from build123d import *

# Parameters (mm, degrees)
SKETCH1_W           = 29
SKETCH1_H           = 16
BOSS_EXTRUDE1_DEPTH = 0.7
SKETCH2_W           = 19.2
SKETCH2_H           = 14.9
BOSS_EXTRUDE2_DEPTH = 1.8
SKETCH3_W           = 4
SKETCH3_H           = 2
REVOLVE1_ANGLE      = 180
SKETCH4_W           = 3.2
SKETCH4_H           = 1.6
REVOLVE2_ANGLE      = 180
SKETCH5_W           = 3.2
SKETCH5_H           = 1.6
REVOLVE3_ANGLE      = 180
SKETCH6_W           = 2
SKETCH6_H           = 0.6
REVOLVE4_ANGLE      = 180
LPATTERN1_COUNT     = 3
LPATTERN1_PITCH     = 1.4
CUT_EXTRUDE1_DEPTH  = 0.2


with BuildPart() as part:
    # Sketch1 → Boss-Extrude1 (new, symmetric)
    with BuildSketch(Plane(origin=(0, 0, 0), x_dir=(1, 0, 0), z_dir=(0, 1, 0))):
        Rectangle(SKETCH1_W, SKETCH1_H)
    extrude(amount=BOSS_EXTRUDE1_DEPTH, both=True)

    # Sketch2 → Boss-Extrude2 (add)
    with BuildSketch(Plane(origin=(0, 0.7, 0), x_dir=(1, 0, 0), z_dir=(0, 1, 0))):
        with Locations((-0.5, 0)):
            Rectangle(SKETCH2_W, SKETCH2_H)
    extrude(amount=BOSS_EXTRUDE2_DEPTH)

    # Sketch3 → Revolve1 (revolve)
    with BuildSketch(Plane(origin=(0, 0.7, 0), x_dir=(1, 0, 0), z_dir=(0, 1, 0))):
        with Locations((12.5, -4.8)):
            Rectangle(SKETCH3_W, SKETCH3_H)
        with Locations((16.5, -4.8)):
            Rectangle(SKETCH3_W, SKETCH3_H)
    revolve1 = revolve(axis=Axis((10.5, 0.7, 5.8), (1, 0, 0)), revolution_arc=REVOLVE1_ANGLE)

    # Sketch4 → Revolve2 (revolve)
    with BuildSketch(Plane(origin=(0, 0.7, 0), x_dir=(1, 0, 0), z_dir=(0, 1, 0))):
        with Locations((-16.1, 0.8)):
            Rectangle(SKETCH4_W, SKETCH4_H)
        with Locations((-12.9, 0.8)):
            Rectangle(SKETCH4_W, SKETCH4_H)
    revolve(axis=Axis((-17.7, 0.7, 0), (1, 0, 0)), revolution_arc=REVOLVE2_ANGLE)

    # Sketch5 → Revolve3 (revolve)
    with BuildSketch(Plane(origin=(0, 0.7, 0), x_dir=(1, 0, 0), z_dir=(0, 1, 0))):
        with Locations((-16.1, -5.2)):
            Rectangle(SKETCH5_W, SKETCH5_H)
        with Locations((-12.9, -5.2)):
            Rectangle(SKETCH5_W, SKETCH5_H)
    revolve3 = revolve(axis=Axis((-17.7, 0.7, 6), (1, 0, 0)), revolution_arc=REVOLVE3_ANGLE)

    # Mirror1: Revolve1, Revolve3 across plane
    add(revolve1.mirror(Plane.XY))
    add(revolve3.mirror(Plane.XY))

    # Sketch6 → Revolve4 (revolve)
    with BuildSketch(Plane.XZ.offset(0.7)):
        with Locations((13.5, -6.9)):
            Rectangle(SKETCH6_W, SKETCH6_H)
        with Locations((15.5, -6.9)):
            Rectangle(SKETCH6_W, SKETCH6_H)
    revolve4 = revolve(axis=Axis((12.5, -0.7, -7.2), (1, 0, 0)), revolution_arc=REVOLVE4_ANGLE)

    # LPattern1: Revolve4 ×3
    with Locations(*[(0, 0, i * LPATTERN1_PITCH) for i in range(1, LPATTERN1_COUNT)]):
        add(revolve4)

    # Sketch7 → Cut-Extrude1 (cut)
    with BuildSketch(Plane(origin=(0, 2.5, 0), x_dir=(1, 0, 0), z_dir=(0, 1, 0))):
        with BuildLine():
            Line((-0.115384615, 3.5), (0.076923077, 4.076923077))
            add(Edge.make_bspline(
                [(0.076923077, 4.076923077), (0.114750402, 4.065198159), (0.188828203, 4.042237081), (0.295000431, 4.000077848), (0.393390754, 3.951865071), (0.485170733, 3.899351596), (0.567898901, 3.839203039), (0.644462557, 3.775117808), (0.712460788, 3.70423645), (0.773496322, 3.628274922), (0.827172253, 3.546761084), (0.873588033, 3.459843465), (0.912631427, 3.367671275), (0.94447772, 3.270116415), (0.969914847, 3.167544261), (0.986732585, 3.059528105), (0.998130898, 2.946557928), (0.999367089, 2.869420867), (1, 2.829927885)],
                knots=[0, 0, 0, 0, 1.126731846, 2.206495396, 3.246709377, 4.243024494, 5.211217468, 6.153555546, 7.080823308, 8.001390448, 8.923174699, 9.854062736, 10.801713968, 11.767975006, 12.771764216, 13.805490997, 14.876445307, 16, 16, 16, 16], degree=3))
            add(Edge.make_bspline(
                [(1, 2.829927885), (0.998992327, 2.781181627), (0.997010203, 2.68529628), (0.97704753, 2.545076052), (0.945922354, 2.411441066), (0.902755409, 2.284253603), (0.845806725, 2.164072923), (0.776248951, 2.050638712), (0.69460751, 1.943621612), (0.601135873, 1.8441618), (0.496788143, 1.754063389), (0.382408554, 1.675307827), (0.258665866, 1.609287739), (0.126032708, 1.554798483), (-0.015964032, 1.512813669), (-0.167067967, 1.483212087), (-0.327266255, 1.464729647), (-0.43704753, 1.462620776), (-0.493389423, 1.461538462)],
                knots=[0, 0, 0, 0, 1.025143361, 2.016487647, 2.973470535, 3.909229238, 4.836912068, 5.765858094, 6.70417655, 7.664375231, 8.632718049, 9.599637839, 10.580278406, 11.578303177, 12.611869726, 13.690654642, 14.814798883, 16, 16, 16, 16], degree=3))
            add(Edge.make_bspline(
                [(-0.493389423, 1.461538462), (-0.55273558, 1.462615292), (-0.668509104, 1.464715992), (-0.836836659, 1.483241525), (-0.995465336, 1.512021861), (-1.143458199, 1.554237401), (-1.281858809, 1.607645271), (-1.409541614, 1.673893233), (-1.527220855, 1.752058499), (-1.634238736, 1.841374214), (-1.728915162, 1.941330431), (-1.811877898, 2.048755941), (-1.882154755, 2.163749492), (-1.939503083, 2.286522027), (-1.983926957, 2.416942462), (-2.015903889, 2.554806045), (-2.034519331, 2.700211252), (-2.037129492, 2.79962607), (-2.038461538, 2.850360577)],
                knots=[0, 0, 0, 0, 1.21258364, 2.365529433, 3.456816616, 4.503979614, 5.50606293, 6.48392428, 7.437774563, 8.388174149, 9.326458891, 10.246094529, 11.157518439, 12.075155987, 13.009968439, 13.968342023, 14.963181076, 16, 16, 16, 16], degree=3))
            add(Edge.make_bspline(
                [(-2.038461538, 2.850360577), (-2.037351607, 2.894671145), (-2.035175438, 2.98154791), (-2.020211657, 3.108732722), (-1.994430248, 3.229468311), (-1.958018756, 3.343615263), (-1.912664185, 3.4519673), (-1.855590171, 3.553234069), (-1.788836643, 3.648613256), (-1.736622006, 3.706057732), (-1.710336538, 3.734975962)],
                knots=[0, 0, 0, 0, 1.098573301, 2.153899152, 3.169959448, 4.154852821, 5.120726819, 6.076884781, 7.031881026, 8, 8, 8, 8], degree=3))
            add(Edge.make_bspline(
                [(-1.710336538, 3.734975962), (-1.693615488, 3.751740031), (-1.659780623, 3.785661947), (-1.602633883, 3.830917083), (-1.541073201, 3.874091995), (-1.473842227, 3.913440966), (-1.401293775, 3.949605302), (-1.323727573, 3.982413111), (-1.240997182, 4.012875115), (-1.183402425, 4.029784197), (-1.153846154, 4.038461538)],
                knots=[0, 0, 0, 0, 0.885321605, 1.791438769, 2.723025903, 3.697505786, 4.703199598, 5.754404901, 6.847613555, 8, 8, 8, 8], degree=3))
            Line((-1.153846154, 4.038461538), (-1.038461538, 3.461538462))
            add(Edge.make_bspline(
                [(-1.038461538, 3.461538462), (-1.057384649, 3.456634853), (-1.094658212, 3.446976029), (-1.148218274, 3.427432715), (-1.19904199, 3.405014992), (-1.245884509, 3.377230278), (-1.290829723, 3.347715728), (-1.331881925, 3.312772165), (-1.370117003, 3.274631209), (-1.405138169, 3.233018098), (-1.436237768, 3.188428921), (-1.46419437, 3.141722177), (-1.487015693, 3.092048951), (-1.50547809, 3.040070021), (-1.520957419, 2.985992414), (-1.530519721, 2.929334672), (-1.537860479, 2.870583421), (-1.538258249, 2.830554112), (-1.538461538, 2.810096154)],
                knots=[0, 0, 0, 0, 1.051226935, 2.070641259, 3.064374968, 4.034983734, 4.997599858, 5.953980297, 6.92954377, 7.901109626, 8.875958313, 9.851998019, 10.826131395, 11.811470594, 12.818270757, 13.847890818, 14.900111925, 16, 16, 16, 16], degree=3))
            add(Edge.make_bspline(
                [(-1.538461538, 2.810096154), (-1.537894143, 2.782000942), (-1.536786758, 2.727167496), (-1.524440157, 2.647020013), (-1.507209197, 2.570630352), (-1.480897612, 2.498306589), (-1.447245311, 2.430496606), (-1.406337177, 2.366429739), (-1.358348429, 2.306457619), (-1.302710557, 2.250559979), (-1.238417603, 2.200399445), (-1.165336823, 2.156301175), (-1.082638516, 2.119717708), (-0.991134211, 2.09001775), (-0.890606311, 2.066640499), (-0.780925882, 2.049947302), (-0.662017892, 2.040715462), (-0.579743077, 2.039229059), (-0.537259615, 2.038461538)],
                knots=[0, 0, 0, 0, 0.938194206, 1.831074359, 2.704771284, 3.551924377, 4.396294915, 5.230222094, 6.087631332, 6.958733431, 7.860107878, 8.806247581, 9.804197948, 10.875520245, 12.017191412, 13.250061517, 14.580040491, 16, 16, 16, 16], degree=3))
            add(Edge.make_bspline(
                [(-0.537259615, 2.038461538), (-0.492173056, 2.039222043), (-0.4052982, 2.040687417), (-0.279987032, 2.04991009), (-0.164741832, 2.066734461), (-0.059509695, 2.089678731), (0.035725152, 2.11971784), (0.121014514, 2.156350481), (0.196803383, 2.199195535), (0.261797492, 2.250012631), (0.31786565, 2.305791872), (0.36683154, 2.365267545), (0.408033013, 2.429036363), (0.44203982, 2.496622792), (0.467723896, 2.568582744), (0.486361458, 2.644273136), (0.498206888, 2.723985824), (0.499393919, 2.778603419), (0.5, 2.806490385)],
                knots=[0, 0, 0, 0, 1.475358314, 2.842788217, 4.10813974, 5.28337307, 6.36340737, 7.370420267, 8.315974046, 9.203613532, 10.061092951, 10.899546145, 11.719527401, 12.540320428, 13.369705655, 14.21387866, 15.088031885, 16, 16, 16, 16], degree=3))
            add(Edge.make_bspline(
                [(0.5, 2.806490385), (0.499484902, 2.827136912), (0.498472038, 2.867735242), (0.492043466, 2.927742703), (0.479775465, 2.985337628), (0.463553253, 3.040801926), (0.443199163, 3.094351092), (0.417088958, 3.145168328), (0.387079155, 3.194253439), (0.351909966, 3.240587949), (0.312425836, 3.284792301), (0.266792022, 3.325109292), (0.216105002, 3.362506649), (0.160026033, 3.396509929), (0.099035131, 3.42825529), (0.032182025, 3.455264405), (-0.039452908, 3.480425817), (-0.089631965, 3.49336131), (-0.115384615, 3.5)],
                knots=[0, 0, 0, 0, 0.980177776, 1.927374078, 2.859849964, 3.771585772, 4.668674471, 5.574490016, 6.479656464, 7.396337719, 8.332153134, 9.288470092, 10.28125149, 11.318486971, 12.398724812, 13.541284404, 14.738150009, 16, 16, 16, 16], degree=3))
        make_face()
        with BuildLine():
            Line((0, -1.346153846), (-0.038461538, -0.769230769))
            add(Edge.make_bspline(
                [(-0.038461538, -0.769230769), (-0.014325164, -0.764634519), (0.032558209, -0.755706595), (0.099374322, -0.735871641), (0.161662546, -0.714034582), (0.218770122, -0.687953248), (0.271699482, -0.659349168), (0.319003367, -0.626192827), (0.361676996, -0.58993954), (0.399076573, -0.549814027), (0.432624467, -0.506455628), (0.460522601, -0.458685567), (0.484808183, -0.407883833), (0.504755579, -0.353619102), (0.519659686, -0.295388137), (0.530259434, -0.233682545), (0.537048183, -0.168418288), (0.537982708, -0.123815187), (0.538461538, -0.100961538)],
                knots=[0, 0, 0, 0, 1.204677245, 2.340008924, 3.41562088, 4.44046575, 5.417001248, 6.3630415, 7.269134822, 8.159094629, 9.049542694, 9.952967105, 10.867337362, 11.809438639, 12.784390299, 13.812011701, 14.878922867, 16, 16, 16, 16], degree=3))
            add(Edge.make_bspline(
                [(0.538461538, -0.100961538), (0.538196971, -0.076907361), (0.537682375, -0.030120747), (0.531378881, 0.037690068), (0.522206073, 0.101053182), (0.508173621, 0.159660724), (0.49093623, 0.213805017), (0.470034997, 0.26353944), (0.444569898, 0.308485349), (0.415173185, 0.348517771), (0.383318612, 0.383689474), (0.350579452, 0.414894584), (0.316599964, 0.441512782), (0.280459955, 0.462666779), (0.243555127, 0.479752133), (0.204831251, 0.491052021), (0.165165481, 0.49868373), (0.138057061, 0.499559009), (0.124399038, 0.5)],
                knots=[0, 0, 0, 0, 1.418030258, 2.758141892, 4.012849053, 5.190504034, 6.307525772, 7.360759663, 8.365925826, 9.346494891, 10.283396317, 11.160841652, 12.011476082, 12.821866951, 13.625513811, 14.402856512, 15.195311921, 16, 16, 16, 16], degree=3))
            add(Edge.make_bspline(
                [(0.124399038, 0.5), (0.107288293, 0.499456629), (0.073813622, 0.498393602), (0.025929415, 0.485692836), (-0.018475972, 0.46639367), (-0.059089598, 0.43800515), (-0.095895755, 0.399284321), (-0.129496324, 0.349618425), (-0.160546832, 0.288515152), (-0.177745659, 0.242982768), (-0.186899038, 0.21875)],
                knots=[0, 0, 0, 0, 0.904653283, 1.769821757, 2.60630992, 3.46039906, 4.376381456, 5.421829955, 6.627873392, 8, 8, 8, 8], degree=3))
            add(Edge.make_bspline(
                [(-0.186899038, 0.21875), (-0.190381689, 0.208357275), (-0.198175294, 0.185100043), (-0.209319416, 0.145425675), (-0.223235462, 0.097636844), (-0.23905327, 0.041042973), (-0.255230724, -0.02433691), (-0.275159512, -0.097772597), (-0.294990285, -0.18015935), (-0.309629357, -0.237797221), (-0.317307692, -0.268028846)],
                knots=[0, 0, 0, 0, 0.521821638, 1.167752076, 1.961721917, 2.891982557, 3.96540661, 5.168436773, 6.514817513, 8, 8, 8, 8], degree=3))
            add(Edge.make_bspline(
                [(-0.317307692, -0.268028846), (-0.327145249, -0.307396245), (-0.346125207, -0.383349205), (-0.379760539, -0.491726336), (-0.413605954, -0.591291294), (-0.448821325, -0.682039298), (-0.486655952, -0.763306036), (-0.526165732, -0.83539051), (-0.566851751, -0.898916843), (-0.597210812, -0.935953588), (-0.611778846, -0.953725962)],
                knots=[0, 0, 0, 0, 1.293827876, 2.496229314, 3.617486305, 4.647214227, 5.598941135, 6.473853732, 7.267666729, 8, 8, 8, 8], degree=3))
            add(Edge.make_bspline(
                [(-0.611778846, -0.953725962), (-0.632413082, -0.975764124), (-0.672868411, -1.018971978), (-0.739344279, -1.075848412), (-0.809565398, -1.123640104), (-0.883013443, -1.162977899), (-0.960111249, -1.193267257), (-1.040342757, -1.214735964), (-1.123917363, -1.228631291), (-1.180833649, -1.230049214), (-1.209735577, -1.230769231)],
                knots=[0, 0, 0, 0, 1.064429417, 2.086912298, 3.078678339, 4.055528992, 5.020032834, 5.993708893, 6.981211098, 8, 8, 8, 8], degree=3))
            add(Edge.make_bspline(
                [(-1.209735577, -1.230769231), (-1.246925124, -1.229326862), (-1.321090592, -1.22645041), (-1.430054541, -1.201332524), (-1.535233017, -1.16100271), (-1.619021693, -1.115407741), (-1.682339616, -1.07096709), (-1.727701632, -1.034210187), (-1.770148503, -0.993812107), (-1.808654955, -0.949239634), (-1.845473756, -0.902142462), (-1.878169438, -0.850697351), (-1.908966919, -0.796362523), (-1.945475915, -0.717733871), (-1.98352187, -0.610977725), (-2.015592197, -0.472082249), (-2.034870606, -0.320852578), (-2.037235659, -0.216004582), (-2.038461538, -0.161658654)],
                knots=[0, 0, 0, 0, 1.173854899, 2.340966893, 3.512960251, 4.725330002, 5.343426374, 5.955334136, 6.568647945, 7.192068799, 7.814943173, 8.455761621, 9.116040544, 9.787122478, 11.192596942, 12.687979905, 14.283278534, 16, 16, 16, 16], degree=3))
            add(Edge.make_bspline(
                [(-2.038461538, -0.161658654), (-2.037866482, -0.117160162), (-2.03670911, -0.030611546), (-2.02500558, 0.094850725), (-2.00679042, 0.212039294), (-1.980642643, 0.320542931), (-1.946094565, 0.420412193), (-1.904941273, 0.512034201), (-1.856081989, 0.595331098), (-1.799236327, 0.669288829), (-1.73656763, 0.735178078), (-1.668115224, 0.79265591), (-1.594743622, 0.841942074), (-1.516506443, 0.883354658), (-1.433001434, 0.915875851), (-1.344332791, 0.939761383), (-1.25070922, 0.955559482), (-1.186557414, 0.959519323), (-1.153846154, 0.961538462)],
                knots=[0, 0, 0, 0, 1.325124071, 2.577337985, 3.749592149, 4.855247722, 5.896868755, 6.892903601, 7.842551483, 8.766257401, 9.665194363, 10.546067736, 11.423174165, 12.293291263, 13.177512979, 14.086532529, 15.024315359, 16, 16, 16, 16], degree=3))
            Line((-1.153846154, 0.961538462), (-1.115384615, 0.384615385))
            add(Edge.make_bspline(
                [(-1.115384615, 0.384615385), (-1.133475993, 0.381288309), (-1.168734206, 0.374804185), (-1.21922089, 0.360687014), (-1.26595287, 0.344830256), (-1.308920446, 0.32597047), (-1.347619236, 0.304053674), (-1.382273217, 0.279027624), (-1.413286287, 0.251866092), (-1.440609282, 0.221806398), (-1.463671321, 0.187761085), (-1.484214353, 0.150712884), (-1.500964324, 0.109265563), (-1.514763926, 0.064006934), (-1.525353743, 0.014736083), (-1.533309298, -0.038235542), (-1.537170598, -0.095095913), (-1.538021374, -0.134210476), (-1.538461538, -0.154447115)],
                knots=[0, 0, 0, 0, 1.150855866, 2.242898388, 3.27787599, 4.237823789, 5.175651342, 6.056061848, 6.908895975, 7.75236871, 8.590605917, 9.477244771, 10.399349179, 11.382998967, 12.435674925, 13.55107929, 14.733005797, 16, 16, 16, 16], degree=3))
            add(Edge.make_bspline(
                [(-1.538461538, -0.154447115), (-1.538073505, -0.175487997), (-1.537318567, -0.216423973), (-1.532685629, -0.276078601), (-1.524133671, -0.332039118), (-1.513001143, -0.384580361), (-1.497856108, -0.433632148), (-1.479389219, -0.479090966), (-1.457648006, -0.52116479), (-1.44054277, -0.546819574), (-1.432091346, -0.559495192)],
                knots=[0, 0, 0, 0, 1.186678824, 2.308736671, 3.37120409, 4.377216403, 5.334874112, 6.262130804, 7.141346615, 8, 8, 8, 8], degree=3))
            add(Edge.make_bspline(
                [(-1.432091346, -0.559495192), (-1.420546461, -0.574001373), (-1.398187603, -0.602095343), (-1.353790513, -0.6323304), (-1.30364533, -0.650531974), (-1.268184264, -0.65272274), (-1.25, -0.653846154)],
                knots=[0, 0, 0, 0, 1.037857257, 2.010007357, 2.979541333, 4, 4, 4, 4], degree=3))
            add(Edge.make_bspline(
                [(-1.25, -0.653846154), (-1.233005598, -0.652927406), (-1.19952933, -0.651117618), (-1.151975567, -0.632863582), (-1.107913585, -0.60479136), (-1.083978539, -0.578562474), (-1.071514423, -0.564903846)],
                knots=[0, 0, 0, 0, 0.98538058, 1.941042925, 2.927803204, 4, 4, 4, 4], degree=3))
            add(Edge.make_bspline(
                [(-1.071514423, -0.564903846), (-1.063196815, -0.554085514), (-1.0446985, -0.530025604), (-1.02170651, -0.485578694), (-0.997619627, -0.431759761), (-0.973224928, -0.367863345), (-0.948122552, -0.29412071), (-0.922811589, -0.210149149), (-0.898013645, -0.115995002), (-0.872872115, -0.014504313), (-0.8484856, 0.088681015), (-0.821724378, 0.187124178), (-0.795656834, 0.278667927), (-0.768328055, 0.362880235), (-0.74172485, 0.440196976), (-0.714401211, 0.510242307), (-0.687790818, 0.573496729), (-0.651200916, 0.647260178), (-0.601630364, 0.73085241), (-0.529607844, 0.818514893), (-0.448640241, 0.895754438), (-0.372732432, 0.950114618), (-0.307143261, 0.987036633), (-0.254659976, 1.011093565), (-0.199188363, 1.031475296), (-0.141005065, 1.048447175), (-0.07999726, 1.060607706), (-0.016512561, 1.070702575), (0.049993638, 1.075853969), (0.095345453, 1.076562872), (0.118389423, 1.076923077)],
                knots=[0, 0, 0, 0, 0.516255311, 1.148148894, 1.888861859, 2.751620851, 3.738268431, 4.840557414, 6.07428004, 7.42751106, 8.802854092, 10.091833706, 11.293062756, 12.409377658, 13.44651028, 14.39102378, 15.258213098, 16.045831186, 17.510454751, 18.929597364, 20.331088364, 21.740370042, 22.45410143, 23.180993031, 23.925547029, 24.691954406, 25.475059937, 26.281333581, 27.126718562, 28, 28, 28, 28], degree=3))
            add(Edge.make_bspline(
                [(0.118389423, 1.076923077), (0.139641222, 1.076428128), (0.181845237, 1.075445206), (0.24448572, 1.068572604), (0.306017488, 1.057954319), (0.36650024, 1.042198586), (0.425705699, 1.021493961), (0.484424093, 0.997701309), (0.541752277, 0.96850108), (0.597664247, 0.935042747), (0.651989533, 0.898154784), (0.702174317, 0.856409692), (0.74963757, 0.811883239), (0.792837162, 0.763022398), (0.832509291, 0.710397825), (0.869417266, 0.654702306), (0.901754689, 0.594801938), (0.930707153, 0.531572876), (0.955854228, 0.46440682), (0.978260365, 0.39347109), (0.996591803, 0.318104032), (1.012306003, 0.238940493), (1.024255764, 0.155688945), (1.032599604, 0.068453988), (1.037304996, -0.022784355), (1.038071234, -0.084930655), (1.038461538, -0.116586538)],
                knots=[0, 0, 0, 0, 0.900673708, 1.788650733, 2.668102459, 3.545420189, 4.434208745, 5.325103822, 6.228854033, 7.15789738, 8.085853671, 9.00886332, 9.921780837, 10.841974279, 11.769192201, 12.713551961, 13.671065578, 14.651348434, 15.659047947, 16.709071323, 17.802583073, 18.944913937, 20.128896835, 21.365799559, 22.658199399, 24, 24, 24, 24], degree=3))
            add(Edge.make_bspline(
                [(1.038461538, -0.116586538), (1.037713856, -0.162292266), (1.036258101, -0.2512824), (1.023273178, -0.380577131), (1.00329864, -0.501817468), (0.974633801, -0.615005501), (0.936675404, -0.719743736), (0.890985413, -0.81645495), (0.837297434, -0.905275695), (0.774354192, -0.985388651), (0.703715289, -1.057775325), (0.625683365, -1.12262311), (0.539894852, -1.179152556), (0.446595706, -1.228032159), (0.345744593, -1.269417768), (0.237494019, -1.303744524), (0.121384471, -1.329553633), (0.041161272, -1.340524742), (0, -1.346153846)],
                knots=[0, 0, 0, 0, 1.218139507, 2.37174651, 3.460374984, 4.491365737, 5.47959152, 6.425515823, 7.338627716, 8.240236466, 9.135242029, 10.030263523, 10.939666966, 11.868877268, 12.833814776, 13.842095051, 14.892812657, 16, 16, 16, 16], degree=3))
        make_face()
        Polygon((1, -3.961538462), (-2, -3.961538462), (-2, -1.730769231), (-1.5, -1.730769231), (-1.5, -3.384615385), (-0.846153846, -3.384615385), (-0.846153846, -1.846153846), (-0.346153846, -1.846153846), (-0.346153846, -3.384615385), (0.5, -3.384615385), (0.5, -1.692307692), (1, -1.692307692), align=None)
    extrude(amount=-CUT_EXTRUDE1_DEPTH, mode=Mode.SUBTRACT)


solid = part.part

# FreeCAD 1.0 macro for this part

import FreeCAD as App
import Part
import Sketcher

V = App.Vector
Q = App.Units.Quantity


def add_polygon(sketch, points):
    """Adds a closed chain of lines whose ends are joined by coincident constraints."""
    first, n = sketch.GeometryCount, len(points)
    for a, b in zip(points, points[1:] + points[:1]):
        sketch.addGeometry(Part.LineSegment(App.Vector(*a, 0), App.Vector(*b, 0)), False)
    for i in range(n):
        sketch.addConstraint(Sketcher.Constraint("Coincident", first + i, 2, first + (i + 1) % n, 1))

doc = App.newDocument("Part")
body = doc.addObject("PartDesign::Body", "Body")

sketch1 = body.newObject("Sketcher::SketchObject", "Sketch")
sketch1.AttachmentSupport = (doc.getObject("XZ_Plane"), [""])
sketch1.MapMode = "FlatFace"
add_polygon(sketch1, [(-14.5, -8), (-14.5, 8), (14.5, 8), (14.5, -8)])
sketch1.addConstraint(Sketcher.Constraint("Vertical", 0))
sketch1.addConstraint(Sketcher.Constraint("Horizontal", 1))
sketch1.addConstraint(Sketcher.Constraint("Vertical", 2))
sketch1.addConstraint(Sketcher.Constraint("Horizontal", 3))
sketch1.addConstraint(Sketcher.Constraint("Symmetric", 0, 2, 2, 2, -1, 1))
sketch1.addConstraint(Sketcher.Constraint("DistanceX", 1, 1, 1, 2, Q("29 mm")))
sketch1.addConstraint(Sketcher.Constraint("DistanceY", 0, 1, 0, 2, Q("16 mm")))
pad1 = body.newObject("PartDesign::Pad", "Pad")
pad1.Profile = sketch1
pad1.Length = 1.4
pad1.Midplane = True

sketch2 = body.newObject("Sketcher::SketchObject", "Sketch001")
sketch2.AttachmentSupport = (doc.getObject("XZ_Plane"), [""])
sketch2.MapMode = "FlatFace"
sketch2.AttachmentOffset = App.Placement(V(0, 0, -0.7), App.Rotation())
add_polygon(sketch2, [(-10.1, -7.45), (-10.1, 7.45), (9.1, 7.45), (9.1, -7.45)])
sketch2.addConstraint(Sketcher.Constraint("Vertical", 0))
sketch2.addConstraint(Sketcher.Constraint("Horizontal", 1))
sketch2.addConstraint(Sketcher.Constraint("Vertical", 2))
sketch2.addConstraint(Sketcher.Constraint("Horizontal", 3))
sketch2.addConstraint(Sketcher.Constraint("DistanceX", 1, 1, 1, 2, Q("19.2 mm")))
sketch2.addConstraint(Sketcher.Constraint("DistanceY", 0, 1, 0, 2, Q("14.9 mm")))
sketch2.addConstraint(Sketcher.Constraint("DistanceX", 0, 2, -1, 1, Q("10.1 mm")))
sketch2.addConstraint(Sketcher.Constraint("DistanceY", -1, 1, 0, 2, Q("7.45 mm")))
pad2 = body.newObject("PartDesign::Pad", "Pad001")
pad2.Profile = sketch2
pad2.Length = 1.8
pad2.Reversed = True

sketch3 = body.newObject("Sketcher::SketchObject", "Sketch002")
sketch3.AttachmentSupport = (doc.getObject("XZ_Plane"), [""])
sketch3.MapMode = "FlatFace"
sketch3.AttachmentOffset = App.Placement(V(0, 0, -0.7), App.Rotation())
add_polygon(sketch3, [(10.5, 3.8), (10.5, 5.8), (18.5, 5.8), (18.5, 3.8)])
sketch3.addGeometry(Part.LineSegment(V(10.5, 5.8, 0), V(18.5, 5.8, 0)), True)
sketch3.addConstraint(Sketcher.Constraint("Vertical", 0))
sketch3.addConstraint(Sketcher.Constraint("Horizontal", 1))
sketch3.addConstraint(Sketcher.Constraint("Vertical", 2))
sketch3.addConstraint(Sketcher.Constraint("Horizontal", 3))
sketch3.addConstraint(Sketcher.Constraint("Horizontal", 4))
sketch3.addConstraint(Sketcher.Constraint("Coincident", 4, 1, 0, 2))
sketch3.addConstraint(Sketcher.Constraint("Vertical", 2, 2, 4, 2))
sketch3.addConstraint(Sketcher.Constraint("DistanceX", 1, 1, 1, 2, Q("8 mm")))
sketch3.addConstraint(Sketcher.Constraint("DistanceY", 0, 1, 0, 2, Q("2 mm")))
sketch3.addConstraint(Sketcher.Constraint("DistanceX", -1, 1, 0, 2, Q("10.5 mm")))
sketch3.addConstraint(Sketcher.Constraint("DistanceY", -1, 1, 0, 2, Q("5.8 mm")))
revolution = body.newObject("PartDesign::Revolution", "Revolution")
revolution.Profile = sketch3
revolution.ReferenceAxis = (sketch3, ["Axis0"])
revolution.Angle = 180

sketch4 = body.newObject("Sketcher::SketchObject", "Sketch003")
sketch4.AttachmentSupport = (doc.getObject("XZ_Plane"), [""])
sketch4.MapMode = "FlatFace"
sketch4.AttachmentOffset = App.Placement(V(0, 0, -0.7), App.Rotation())
add_polygon(sketch4, [(-17.7, -1.6), (-17.7, 0), (-11.3, 0), (-11.3, -1.6)])
sketch4.addConstraint(Sketcher.Constraint("Vertical", 0))
sketch4.addConstraint(Sketcher.Constraint("Horizontal", 1))
sketch4.addConstraint(Sketcher.Constraint("Vertical", 2))
sketch4.addConstraint(Sketcher.Constraint("Horizontal", 3))
sketch4.addConstraint(Sketcher.Constraint("PointOnObject", 0, 2, -1))
sketch4.addConstraint(Sketcher.Constraint("DistanceX", 1, 1, 1, 2, Q("6.4 mm")))
sketch4.addConstraint(Sketcher.Constraint("DistanceY", 0, 1, 0, 2, Q("1.6 mm")))
sketch4.addConstraint(Sketcher.Constraint("DistanceX", 0, 2, -1, 1, Q("17.7 mm")))
revolution2 = body.newObject("PartDesign::Revolution", "Revolution001")
revolution2.Profile = sketch4
revolution2.ReferenceAxis = (sketch4, ["H_Axis"])
revolution2.Angle = 180

sketch5 = body.newObject("Sketcher::SketchObject", "Sketch004")
sketch5.AttachmentSupport = (doc.getObject("XZ_Plane"), [""])
sketch5.MapMode = "FlatFace"
sketch5.AttachmentOffset = App.Placement(V(0, 0, -0.7), App.Rotation())
add_polygon(sketch5, [(-17.7, 4.4), (-17.7, 6), (-11.3, 6), (-11.3, 4.4)])
sketch5.addGeometry(Part.LineSegment(V(-17.7, 6, 0), V(-11.3, 6, 0)), True)
sketch5.addConstraint(Sketcher.Constraint("Vertical", 0))
sketch5.addConstraint(Sketcher.Constraint("Horizontal", 1))
sketch5.addConstraint(Sketcher.Constraint("Vertical", 2))
sketch5.addConstraint(Sketcher.Constraint("Horizontal", 3))
sketch5.addConstraint(Sketcher.Constraint("Horizontal", 4))
sketch5.addConstraint(Sketcher.Constraint("Coincident", 4, 1, 0, 2))
sketch5.addConstraint(Sketcher.Constraint("Vertical", 2, 2, 4, 2))
sketch5.addConstraint(Sketcher.Constraint("DistanceX", 1, 1, 1, 2, Q("6.4 mm")))
sketch5.addConstraint(Sketcher.Constraint("DistanceY", 0, 1, 0, 2, Q("1.6 mm")))
sketch5.addConstraint(Sketcher.Constraint("DistanceY", -1, 1, 0, 2, Q("6 mm")))
sketch5.addConstraint(Sketcher.Constraint("DistanceX", 0, 2, -1, 1, Q("17.7 mm")))
revolution3 = body.newObject("PartDesign::Revolution", "Revolution002")
revolution3.Profile = sketch5
revolution3.ReferenceAxis = (sketch5, ["Axis0"])
revolution3.Angle = 180
doc.recompute()

mirrored = body.newObject("PartDesign::Mirrored", "Mirrored")
mirrored.Originals = [revolution, revolution3]
mirrored.MirrorPlane = (doc.getObject("XY_Plane"), [""])
body.Tip = mirrored

sketch6 = body.newObject("Sketcher::SketchObject", "Sketch005")
sketch6.AttachmentSupport = (doc.getObject("XZ_Plane"), [""])
sketch6.MapMode = "FlatFace"
sketch6.AttachmentOffset = App.Placement(V(0, 0, 0.7), App.Rotation())
add_polygon(sketch6, [(12.5, -6.6), (12.5, -7.2), (16.5, -7.2), (16.5, -6.6)])
sketch6.addGeometry(Part.LineSegment(V(12.5, -7.2, 0), V(16.5, -7.2, 0)), True)
sketch6.addConstraint(Sketcher.Constraint("Vertical", 0))
sketch6.addConstraint(Sketcher.Constraint("Horizontal", 1))
sketch6.addConstraint(Sketcher.Constraint("Vertical", 2))
sketch6.addConstraint(Sketcher.Constraint("Horizontal", 3))
sketch6.addConstraint(Sketcher.Constraint("Horizontal", 4))
sketch6.addConstraint(Sketcher.Constraint("Coincident", 4, 1, 0, 2))
sketch6.addConstraint(Sketcher.Constraint("Vertical", 2, 2, 4, 2))
sketch6.addConstraint(Sketcher.Constraint("DistanceX", 1, 1, 1, 2, Q("4 mm")))
sketch6.addConstraint(Sketcher.Constraint("DistanceY", 0, 2, 0, 1, Q("0.6 mm")))
sketch6.addConstraint(Sketcher.Constraint("DistanceX", -1, 1, 0, 2, Q("12.5 mm")))
sketch6.addConstraint(Sketcher.Constraint("DistanceY", 0, 2, -1, 1, Q("7.2 mm")))
revolution4 = body.newObject("PartDesign::Revolution", "Revolution003")
revolution4.Profile = sketch6
revolution4.ReferenceAxis = (sketch6, ["Axis0"])
revolution4.Angle = 180
doc.recompute()

linearpattern = body.newObject("PartDesign::LinearPattern", "LinearPattern")
linearpattern.Originals = [revolution4]
linearpattern.Direction = (doc.getObject("Z_Axis"), [""])
linearpattern.Mode = "offset"
linearpattern.Offset = 1.4
linearpattern.Occurrences = 3
body.Tip = linearpattern

sketch7 = body.newObject("Sketcher::SketchObject", "Sketch006")
sketch7.AttachmentSupport = (doc.getObject("XZ_Plane"), [""])
sketch7.MapMode = "FlatFace"
sketch7.AttachmentOffset = App.Placement(V(0, 0, -2.5), App.Rotation())
sketch7.addGeometry(Part.LineSegment(V(0.076923, -4.076923, 0), V(-0.115385, -3.5, 0)), False)
sketch7.addGeometry(Part.BSplineCurve([V(0.5, -2.80649, 0), V(0.499485, -2.827137, 0), V(0.498472, -2.867735, 0), V(0.492043, -2.927743, 0), V(0.479775, -2.985338, 0), V(0.463553, -3.040802, 0), V(0.443199, -3.094351, 0), V(0.417089, -3.145168, 0), V(0.387079, -3.194253, 0), V(0.35191, -3.240588, 0), V(0.312426, -3.284792, 0), V(0.266792, -3.325109, 0), V(0.216105, -3.362507, 0), V(0.160026, -3.39651, 0), V(0.099035, -3.428255, 0), V(0.032182, -3.455264, 0), V(-0.039453, -3.480426, 0), V(-0.089632, -3.493361, 0), V(-0.115385, -3.5, 0)], [4, 1, 1, 1, 1, 1, 1, 1, 1, 1, 1, 1, 1, 1, 1, 1, 4], [0, 0.980177776, 1.927374078, 2.859849964, 3.771585772, 4.668674471, 5.574490016, 6.479656464, 7.396337719, 8.332153134, 9.288470092, 10.28125149, 11.318486971, 12.398724812, 13.541284404, 14.738150009, 16], False, 3, [1, 1, 1, 1, 1, 1, 1, 1, 1, 1, 1, 1, 1, 1, 1, 1, 1, 1, 1], False), False)
sketch7.addGeometry(Part.BSplineCurve([V(-0.53726, -2.038462, 0), V(-0.492173, -2.039222, 0), V(-0.405298, -2.040687, 0), V(-0.279987, -2.04991, 0), V(-0.164742, -2.066734, 0), V(-0.05951, -2.089679, 0), V(0.035725, -2.119718, 0), V(0.121015, -2.15635, 0), V(0.196803, -2.199196, 0), V(0.261797, -2.250013, 0), V(0.317866, -2.305792, 0), V(0.366832, -2.365268, 0), V(0.408033, -2.429036, 0), V(0.44204, -2.496623, 0), V(0.467724, -2.568583, 0), V(0.486361, -2.644273, 0), V(0.498207, -2.723986, 0), V(0.499394, -2.778603, 0), V(0.5, -2.80649, 0)], [4, 1, 1, 1, 1, 1, 1, 1, 1, 1, 1, 1, 1, 1, 1, 1, 4], [0, 1.475358314, 2.842788217, 4.10813974, 5.28337307, 6.36340737, 7.370420267, 8.315974046, 9.203613532, 10.061092951, 10.899546145, 11.719527401, 12.540320428, 13.369705655, 14.21387866, 15.088031885, 16], False, 3, [1, 1, 1, 1, 1, 1, 1, 1, 1, 1, 1, 1, 1, 1, 1, 1, 1, 1, 1], False), False)
sketch7.addGeometry(Part.BSplineCurve([V(-1.538462, -2.810096, 0), V(-1.537894, -2.782001, 0), V(-1.536787, -2.727167, 0), V(-1.52444, -2.64702, 0), V(-1.507209, -2.57063, 0), V(-1.480898, -2.498307, 0), V(-1.447245, -2.430497, 0), V(-1.406337, -2.36643, 0), V(-1.358348, -2.306458, 0), V(-1.302711, -2.25056, 0), V(-1.238418, -2.200399, 0), V(-1.165337, -2.156301, 0), V(-1.082639, -2.119718, 0), V(-0.991134, -2.090018, 0), V(-0.890606, -2.06664, 0), V(-0.780926, -2.049947, 0), V(-0.662018, -2.040715, 0), V(-0.579743, -2.039229, 0), V(-0.53726, -2.038462, 0)], [4, 1, 1, 1, 1, 1, 1, 1, 1, 1, 1, 1, 1, 1, 1, 1, 4], [0, 0.938194206, 1.831074359, 2.704771284, 3.551924377, 4.396294915, 5.230222094, 6.087631332, 6.958733431, 7.860107878, 8.806247581, 9.804197948, 10.875520245, 12.017191412, 13.250061517, 14.580040491, 16], False, 3, [1, 1, 1, 1, 1, 1, 1, 1, 1, 1, 1, 1, 1, 1, 1, 1, 1, 1, 1], False), False)
sketch7.addGeometry(Part.BSplineCurve([V(-1.038462, -3.461538, 0), V(-1.057385, -3.456635, 0), V(-1.094658, -3.446976, 0), V(-1.148218, -3.427433, 0), V(-1.199042, -3.405015, 0), V(-1.245885, -3.37723, 0), V(-1.29083, -3.347716, 0), V(-1.331882, -3.312772, 0), V(-1.370117, -3.274631, 0), V(-1.405138, -3.233018, 0), V(-1.436238, -3.188429, 0), V(-1.464194, -3.141722, 0), V(-1.487016, -3.092049, 0), V(-1.505478, -3.04007, 0), V(-1.520957, -2.985992, 0), V(-1.53052, -2.929335, 0), V(-1.53786, -2.870583, 0), V(-1.538258, -2.830554, 0), V(-1.538462, -2.810096, 0)], [4, 1, 1, 1, 1, 1, 1, 1, 1, 1, 1, 1, 1, 1, 1, 1, 4], [0, 1.051226935, 2.070641259, 3.064374968, 4.034983734, 4.997599858, 5.953980297, 6.92954377, 7.901109626, 8.875958313, 9.851998019, 10.826131395, 11.811470594, 12.818270757, 13.847890818, 14.900111925, 16], False, 3, [1, 1, 1, 1, 1, 1, 1, 1, 1, 1, 1, 1, 1, 1, 1, 1, 1, 1, 1], False), False)
sketch7.addGeometry(Part.LineSegment(V(-1.038462, -3.461538, 0), V(-1.153846, -4.038462, 0)), False)
sketch7.addGeometry(Part.BSplineCurve([V(-1.710337, -3.734976, 0), V(-1.693615, -3.75174, 0), V(-1.659781, -3.785662, 0), V(-1.602634, -3.830917, 0), V(-1.541073, -3.874092, 0), V(-1.473842, -3.913441, 0), V(-1.401294, -3.949605, 0), V(-1.323728, -3.982413, 0), V(-1.240997, -4.012875, 0), V(-1.183402, -4.029784, 0), V(-1.153846, -4.038462, 0)], [4, 1, 1, 1, 1, 1, 1, 1, 4], [0, 0.885321605, 1.791438769, 2.723025903, 3.697505786, 4.703199598, 5.754404901, 6.847613555, 8], False, 3, [1, 1, 1, 1, 1, 1, 1, 1, 1, 1, 1], False), False)
sketch7.addGeometry(Part.BSplineCurve([V(-2.038462, -2.850361, 0), V(-2.037352, -2.894671, 0), V(-2.035175, -2.981548, 0), V(-2.020212, -3.108733, 0), V(-1.99443, -3.229468, 0), V(-1.958019, -3.343615, 0), V(-1.912664, -3.451967, 0), V(-1.85559, -3.553234, 0), V(-1.788837, -3.648613, 0), V(-1.736622, -3.706058, 0), V(-1.710337, -3.734976, 0)], [4, 1, 1, 1, 1, 1, 1, 1, 4], [0, 1.098573301, 2.153899152, 3.169959448, 4.154852821, 5.120726819, 6.076884781, 7.031881026, 8], False, 3, [1, 1, 1, 1, 1, 1, 1, 1, 1, 1, 1], False), False)
sketch7.addGeometry(Part.BSplineCurve([V(-0.493389, -1.461538, 0), V(-0.552736, -1.462615, 0), V(-0.668509, -1.464716, 0), V(-0.836837, -1.483242, 0), V(-0.995465, -1.512022, 0), V(-1.143458, -1.554237, 0), V(-1.281859, -1.607645, 0), V(-1.409542, -1.673893, 0), V(-1.527221, -1.752058, 0), V(-1.634239, -1.841374, 0), V(-1.728915, -1.94133, 0), V(-1.811878, -2.048756, 0), V(-1.882155, -2.163749, 0), V(-1.939503, -2.286522, 0), V(-1.983927, -2.416942, 0), V(-2.015904, -2.554806, 0), V(-2.034519, -2.700211, 0), V(-2.037129, -2.799626, 0), V(-2.038462, -2.850361, 0)], [4, 1, 1, 1, 1, 1, 1, 1, 1, 1, 1, 1, 1, 1, 1, 1, 4], [0, 1.21258364, 2.365529433, 3.456816616, 4.503979614, 5.50606293, 6.48392428, 7.437774563, 8.388174149, 9.326458891, 10.246094529, 11.157518439, 12.075155987, 13.009968439, 13.968342023, 14.963181076, 16], False, 3, [1, 1, 1, 1, 1, 1, 1, 1, 1, 1, 1, 1, 1, 1, 1, 1, 1, 1, 1], False), False)
sketch7.addGeometry(Part.BSplineCurve([V(1, -2.829928, 0), V(0.998992, -2.781182, 0), V(0.99701, -2.685296, 0), V(0.977048, -2.545076, 0), V(0.945922, -2.411441, 0), V(0.902755, -2.284254, 0), V(0.845807, -2.164073, 0), V(0.776249, -2.050639, 0), V(0.694608, -1.943622, 0), V(0.601136, -1.844162, 0), V(0.496788, -1.754063, 0), V(0.382409, -1.675308, 0), V(0.258666, -1.609288, 0), V(0.126033, -1.554798, 0), V(-0.015964, -1.512814, 0), V(-0.167068, -1.483212, 0), V(-0.327266, -1.46473, 0), V(-0.437048, -1.462621, 0), V(-0.493389, -1.461538, 0)], [4, 1, 1, 1, 1, 1, 1, 1, 1, 1, 1, 1, 1, 1, 1, 1, 4], [0, 1.025143361, 2.016487647, 2.973470535, 3.909229238, 4.836912068, 5.765858094, 6.70417655, 7.664375231, 8.632718049, 9.599637839, 10.580278406, 11.578303177, 12.611869726, 13.690654642, 14.814798883, 16], False, 3, [1, 1, 1, 1, 1, 1, 1, 1, 1, 1, 1, 1, 1, 1, 1, 1, 1, 1, 1], False), False)
sketch7.addGeometry(Part.BSplineCurve([V(0.076923, -4.076923, 0), V(0.11475, -4.065198, 0), V(0.188828, -4.042237, 0), V(0.295, -4.000078, 0), V(0.393391, -3.951865, 0), V(0.485171, -3.899352, 0), V(0.567899, -3.839203, 0), V(0.644463, -3.775118, 0), V(0.712461, -3.704236, 0), V(0.773496, -3.628275, 0), V(0.827172, -3.546761, 0), V(0.873588, -3.459843, 0), V(0.912631, -3.367671, 0), V(0.944478, -3.270116, 0), V(0.969915, -3.167544, 0), V(0.986733, -3.059528, 0), V(0.998131, -2.946558, 0), V(0.999367, -2.869421, 0), V(1, -2.829928, 0)], [4, 1, 1, 1, 1, 1, 1, 1, 1, 1, 1, 1, 1, 1, 1, 1, 4], [0, 1.126731846, 2.206495396, 3.246709377, 4.243024494, 5.211217468, 6.153555546, 7.080823308, 8.001390448, 8.923174699, 9.854062736, 10.801713968, 11.767975006, 12.771764216, 13.805490997, 14.876445307, 16], False, 3, [1, 1, 1, 1, 1, 1, 1, 1, 1, 1, 1, 1, 1, 1, 1, 1, 1, 1, 1], False), False)
sketch7.addGeometry(Part.LineSegment(V(-0.038462, 0.769231, 0), V(0, 1.346154, 0)), False)
sketch7.addGeometry(Part.BSplineCurve([V(1.038462, 0.116587, 0), V(1.037714, 0.162292, 0), V(1.036258, 0.251282, 0), V(1.023273, 0.380577, 0), V(1.003299, 0.501817, 0), V(0.974634, 0.615006, 0), V(0.936675, 0.719744, 0), V(0.890985, 0.816455, 0), V(0.837297, 0.905276, 0), V(0.774354, 0.985389, 0), V(0.703715, 1.057775, 0), V(0.625683, 1.122623, 0), V(0.539895, 1.179153, 0), V(0.446596, 1.228032, 0), V(0.345745, 1.269418, 0), V(0.237494, 1.303745, 0), V(0.121384, 1.329554, 0), V(0.041161, 1.340525, 0), V(0, 1.346154, 0)], [4, 1, 1, 1, 1, 1, 1, 1, 1, 1, 1, 1, 1, 1, 1, 1, 4], [0, 1.218139507, 2.37174651, 3.460374984, 4.491365737, 5.47959152, 6.425515823, 7.338627716, 8.240236466, 9.135242029, 10.030263523, 10.939666966, 11.868877268, 12.833814776, 13.842095051, 14.892812657, 16], False, 3, [1, 1, 1, 1, 1, 1, 1, 1, 1, 1, 1, 1, 1, 1, 1, 1, 1, 1, 1], False), False)
sketch7.addGeometry(Part.BSplineCurve([V(0.118389, -1.076923, 0), V(0.139641, -1.076428, 0), V(0.181845, -1.075445, 0), V(0.244486, -1.068573, 0), V(0.306017, -1.057954, 0), V(0.3665, -1.042199, 0), V(0.425706, -1.021494, 0), V(0.484424, -0.997701, 0), V(0.541752, -0.968501, 0), V(0.597664, -0.935043, 0), V(0.65199, -0.898155, 0), V(0.702174, -0.85641, 0), V(0.749638, -0.811883, 0), V(0.792837, -0.763022, 0), V(0.832509, -0.710398, 0), V(0.869417, -0.654702, 0), V(0.901755, -0.594802, 0), V(0.930707, -0.531573, 0), V(0.955854, -0.464407, 0), V(0.97826, -0.393471, 0), V(0.996592, -0.318104, 0), V(1.012306, -0.23894, 0), V(1.024256, -0.155689, 0), V(1.0326, -0.068454, 0), V(1.037305, 0.022784, 0), V(1.038071, 0.084931, 0), V(1.038462, 0.116587, 0)], [4, 1, 1, 1, 1, 1, 1, 1, 1, 1, 1, 1, 1, 1, 1, 1, 1, 1, 1, 1, 1, 1, 1, 1, 4], [0, 0.900673708, 1.788650733, 2.668102459, 3.545420189, 4.434208745, 5.325103822, 6.228854033, 7.15789738, 8.085853671, 9.00886332, 9.921780837, 10.841974279, 11.769192201, 12.713551961, 13.671065578, 14.651348434, 15.659047947, 16.709071323, 17.802583073, 18.944913937, 20.128896835, 21.365799559, 22.658199399, 24], False, 3, [1, 1, 1, 1, 1, 1, 1, 1, 1, 1, 1, 1, 1, 1, 1, 1, 1, 1, 1, 1, 1, 1, 1, 1, 1, 1, 1], False), False)
sketch7.addGeometry(Part.BSplineCurve([V(-1.071514, 0.564904, 0), V(-1.063197, 0.554086, 0), V(-1.044698, 0.530026, 0), V(-1.021707, 0.485579, 0), V(-0.99762, 0.43176, 0), V(-0.973225, 0.367863, 0), V(-0.948123, 0.294121, 0), V(-0.922812, 0.210149, 0), V(-0.898014, 0.115995, 0), V(-0.872872, 0.014504, 0), V(-0.848486, -0.088681, 0), V(-0.821724, -0.187124, 0), V(-0.795657, -0.278668, 0), V(-0.768328, -0.36288, 0), V(-0.741725, -0.440197, 0), V(-0.714401, -0.510242, 0), V(-0.687791, -0.573497, 0), V(-0.651201, -0.64726, 0), V(-0.60163, -0.730852, 0), V(-0.529608, -0.818515, 0), V(-0.44864, -0.895754, 0), V(-0.372732, -0.950115, 0), V(-0.307143, -0.987037, 0), V(-0.25466, -1.011094, 0), V(-0.199188, -1.031475, 0), V(-0.141005, -1.048447, 0), V(-0.079997, -1.060608, 0), V(-0.016513, -1.070703, 0), V(0.049994, -1.075854, 0), V(0.095345, -1.076563, 0), V(0.118389, -1.076923, 0)], [4, 1, 1, 1, 1, 1, 1, 1, 1, 1, 1, 1, 1, 1, 1, 1, 1, 1, 1, 1, 1, 1, 1, 1, 1, 1, 1, 1, 4], [0, 0.516255311, 1.148148894, 1.888861859, 2.751620851, 3.738268431, 4.840557414, 6.07428004, 7.42751106, 8.802854092, 10.091833706, 11.293062756, 12.409377658, 13.44651028, 14.39102378, 15.258213098, 16.045831186, 17.510454751, 18.929597364, 20.331088364, 21.740370042, 22.45410143, 23.180993031, 23.925547029, 24.691954406, 25.475059937, 26.281333581, 27.126718562, 28], False, 3, [1, 1, 1, 1, 1, 1, 1, 1, 1, 1, 1, 1, 1, 1, 1, 1, 1, 1, 1, 1, 1, 1, 1, 1, 1, 1, 1, 1, 1, 1, 1], False), False)
sketch7.addGeometry(Part.BSplineCurve([V(-1.25, 0.653846, 0), V(-1.233006, 0.652927, 0), V(-1.199529, 0.651118, 0), V(-1.151976, 0.632864, 0), V(-1.107914, 0.604791, 0), V(-1.083979, 0.578562, 0), V(-1.071514, 0.564904, 0)], [4, 1, 1, 1, 4], [0, 0.98538058, 1.941042925, 2.927803204, 4], False, 3, [1, 1, 1, 1, 1, 1, 1], False), False)
sketch7.addGeometry(Part.BSplineCurve([V(-1.432091, 0.559495, 0), V(-1.420546, 0.574001, 0), V(-1.398188, 0.602095, 0), V(-1.353791, 0.63233, 0), V(-1.303645, 0.650532, 0), V(-1.268184, 0.652723, 0), V(-1.25, 0.653846, 0)], [4, 1, 1, 1, 4], [0, 1.037857257, 2.010007357, 2.979541333, 4], False, 3, [1, 1, 1, 1, 1, 1, 1], False), False)
sketch7.addGeometry(Part.BSplineCurve([V(-1.538462, 0.154447, 0), V(-1.538074, 0.175488, 0), V(-1.537319, 0.216424, 0), V(-1.532686, 0.276079, 0), V(-1.524134, 0.332039, 0), V(-1.513001, 0.38458, 0), V(-1.497856, 0.433632, 0), V(-1.479389, 0.479091, 0), V(-1.457648, 0.521165, 0), V(-1.440543, 0.54682, 0), V(-1.432091, 0.559495, 0)], [4, 1, 1, 1, 1, 1, 1, 1, 4], [0, 1.186678824, 2.308736671, 3.37120409, 4.377216403, 5.334874112, 6.262130804, 7.141346615, 8], False, 3, [1, 1, 1, 1, 1, 1, 1, 1, 1, 1, 1], False), False)
sketch7.addGeometry(Part.BSplineCurve([V(-1.115385, -0.384615, 0), V(-1.133476, -0.381288, 0), V(-1.168734, -0.374804, 0), V(-1.219221, -0.360687, 0), V(-1.265953, -0.34483, 0), V(-1.30892, -0.32597, 0), V(-1.347619, -0.304054, 0), V(-1.382273, -0.279028, 0), V(-1.413286, -0.251866, 0), V(-1.440609, -0.221806, 0), V(-1.463671, -0.187761, 0), V(-1.484214, -0.150713, 0), V(-1.500964, -0.109266, 0), V(-1.514764, -0.064007, 0), V(-1.525354, -0.014736, 0), V(-1.533309, 0.038236, 0), V(-1.537171, 0.095096, 0), V(-1.538021, 0.13421, 0), V(-1.538462, 0.154447, 0)], [4, 1, 1, 1, 1, 1, 1, 1, 1, 1, 1, 1, 1, 1, 1, 1, 4], [0, 1.150855866, 2.242898388, 3.27787599, 4.237823789, 5.175651342, 6.056061848, 6.908895975, 7.75236871, 8.590605917, 9.477244771, 10.399349179, 11.382998967, 12.435674925, 13.55107929, 14.733005797, 16], False, 3, [1, 1, 1, 1, 1, 1, 1, 1, 1, 1, 1, 1, 1, 1, 1, 1, 1, 1, 1], False), False)
sketch7.addGeometry(Part.LineSegment(V(-1.115385, -0.384615, 0), V(-1.153846, -0.961538, 0)), False)
sketch7.addGeometry(Part.BSplineCurve([V(-2.038462, 0.161659, 0), V(-2.037866, 0.11716, 0), V(-2.036709, 0.030612, 0), V(-2.025006, -0.094851, 0), V(-2.00679, -0.212039, 0), V(-1.980643, -0.320543, 0), V(-1.946095, -0.420412, 0), V(-1.904941, -0.512034, 0), V(-1.856082, -0.595331, 0), V(-1.799236, -0.669289, 0), V(-1.736568, -0.735178, 0), V(-1.668115, -0.792656, 0), V(-1.594744, -0.841942, 0), V(-1.516506, -0.883355, 0), V(-1.433001, -0.915876, 0), V(-1.344333, -0.939761, 0), V(-1.250709, -0.955559, 0), V(-1.186557, -0.959519, 0), V(-1.153846, -0.961538, 0)], [4, 1, 1, 1, 1, 1, 1, 1, 1, 1, 1, 1, 1, 1, 1, 1, 4], [0, 1.325124071, 2.577337985, 3.749592149, 4.855247722, 5.896868755, 6.892903601, 7.842551483, 8.766257401, 9.665194363, 10.546067736, 11.423174165, 12.293291263, 13.177512979, 14.086532529, 15.024315359, 16], False, 3, [1, 1, 1, 1, 1, 1, 1, 1, 1, 1, 1, 1, 1, 1, 1, 1, 1, 1, 1], False), False)
sketch7.addGeometry(Part.BSplineCurve([V(-1.209736, 1.230769, 0), V(-1.246925, 1.229327, 0), V(-1.321091, 1.22645, 0), V(-1.430055, 1.201333, 0), V(-1.535233, 1.161003, 0), V(-1.619022, 1.115408, 0), V(-1.68234, 1.070967, 0), V(-1.727702, 1.03421, 0), V(-1.770149, 0.993812, 0), V(-1.808655, 0.94924, 0), V(-1.845474, 0.902142, 0), V(-1.878169, 0.850697, 0), V(-1.908967, 0.796363, 0), V(-1.945476, 0.717734, 0), V(-1.983522, 0.610978, 0), V(-2.015592, 0.472082, 0), V(-2.034871, 0.320853, 0), V(-2.037236, 0.216005, 0), V(-2.038462, 0.161659, 0)], [4, 1, 1, 1, 1, 1, 1, 1, 1, 1, 1, 1, 1, 1, 1, 1, 4], [0, 1.173854899, 2.340966893, 3.512960251, 4.725330002, 5.343426374, 5.955334136, 6.568647945, 7.192068799, 7.814943173, 8.455761621, 9.116040544, 9.787122478, 11.192596942, 12.687979905, 14.283278534, 16], False, 3, [1, 1, 1, 1, 1, 1, 1, 1, 1, 1, 1, 1, 1, 1, 1, 1, 1, 1, 1], False), False)
sketch7.addGeometry(Part.BSplineCurve([V(-0.611779, 0.953726, 0), V(-0.632413, 0.975764, 0), V(-0.672868, 1.018972, 0), V(-0.739344, 1.075848, 0), V(-0.809565, 1.12364, 0), V(-0.883013, 1.162978, 0), V(-0.960111, 1.193267, 0), V(-1.040343, 1.214736, 0), V(-1.123917, 1.228631, 0), V(-1.180834, 1.230049, 0), V(-1.209736, 1.230769, 0)], [4, 1, 1, 1, 1, 1, 1, 1, 4], [0, 1.064429417, 2.086912298, 3.078678339, 4.055528992, 5.020032834, 5.993708893, 6.981211098, 8], False, 3, [1, 1, 1, 1, 1, 1, 1, 1, 1, 1, 1], False), False)
sketch7.addGeometry(Part.BSplineCurve([V(-0.317308, 0.268029, 0), V(-0.327145, 0.307396, 0), V(-0.346125, 0.383349, 0), V(-0.379761, 0.491726, 0), V(-0.413606, 0.591291, 0), V(-0.448821, 0.682039, 0), V(-0.486656, 0.763306, 0), V(-0.526166, 0.835391, 0), V(-0.566852, 0.898917, 0), V(-0.597211, 0.935954, 0), V(-0.611779, 0.953726, 0)], [4, 1, 1, 1, 1, 1, 1, 1, 4], [0, 1.293827876, 2.496229314, 3.617486305, 4.647214227, 5.598941135, 6.473853732, 7.267666729, 8], False, 3, [1, 1, 1, 1, 1, 1, 1, 1, 1, 1, 1], False), False)
sketch7.addGeometry(Part.BSplineCurve([V(-0.186899, -0.21875, 0), V(-0.190382, -0.208357, 0), V(-0.198175, -0.1851, 0), V(-0.209319, -0.145426, 0), V(-0.223235, -0.097637, 0), V(-0.239053, -0.041043, 0), V(-0.255231, 0.024337, 0), V(-0.27516, 0.097773, 0), V(-0.29499, 0.180159, 0), V(-0.309629, 0.237797, 0), V(-0.317308, 0.268029, 0)], [4, 1, 1, 1, 1, 1, 1, 1, 4], [0, 0.521821638, 1.167752076, 1.961721917, 2.891982557, 3.96540661, 5.168436773, 6.514817513, 8], False, 3, [1, 1, 1, 1, 1, 1, 1, 1, 1, 1, 1], False), False)
sketch7.addGeometry(Part.BSplineCurve([V(0.124399, -0.5, 0), V(0.107288, -0.499457, 0), V(0.073814, -0.498394, 0), V(0.025929, -0.485693, 0), V(-0.018476, -0.466394, 0), V(-0.05909, -0.438005, 0), V(-0.095896, -0.399284, 0), V(-0.129496, -0.349618, 0), V(-0.160547, -0.288515, 0), V(-0.177746, -0.242983, 0), V(-0.186899, -0.21875, 0)], [4, 1, 1, 1, 1, 1, 1, 1, 4], [0, 0.904653283, 1.769821757, 2.60630992, 3.46039906, 4.376381456, 5.421829955, 6.627873392, 8], False, 3, [1, 1, 1, 1, 1, 1, 1, 1, 1, 1, 1], False), False)
sketch7.addGeometry(Part.BSplineCurve([V(0.538462, 0.100962, 0), V(0.538197, 0.076907, 0), V(0.537682, 0.030121, 0), V(0.531379, -0.03769, 0), V(0.522206, -0.101053, 0), V(0.508174, -0.159661, 0), V(0.490936, -0.213805, 0), V(0.470035, -0.263539, 0), V(0.44457, -0.308485, 0), V(0.415173, -0.348518, 0), V(0.383319, -0.383689, 0), V(0.350579, -0.414895, 0), V(0.3166, -0.441513, 0), V(0.28046, -0.462667, 0), V(0.243555, -0.479752, 0), V(0.204831, -0.491052, 0), V(0.165165, -0.498684, 0), V(0.138057, -0.499559, 0), V(0.124399, -0.5, 0)], [4, 1, 1, 1, 1, 1, 1, 1, 1, 1, 1, 1, 1, 1, 1, 1, 4], [0, 1.418030258, 2.758141892, 4.012849053, 5.190504034, 6.307525772, 7.360759663, 8.365925826, 9.346494891, 10.283396317, 11.160841652, 12.011476082, 12.821866951, 13.625513811, 14.402856512, 15.195311921, 16], False, 3, [1, 1, 1, 1, 1, 1, 1, 1, 1, 1, 1, 1, 1, 1, 1, 1, 1, 1, 1], False), False)
sketch7.addGeometry(Part.BSplineCurve([V(-0.038462, 0.769231, 0), V(-0.014325, 0.764635, 0), V(0.032558, 0.755707, 0), V(0.099374, 0.735872, 0), V(0.161663, 0.714035, 0), V(0.21877, 0.687953, 0), V(0.271699, 0.659349, 0), V(0.319003, 0.626193, 0), V(0.361677, 0.58994, 0), V(0.399077, 0.549814, 0), V(0.432624, 0.506456, 0), V(0.460523, 0.458686, 0), V(0.484808, 0.407884, 0), V(0.504756, 0.353619, 0), V(0.51966, 0.295388, 0), V(0.530259, 0.233683, 0), V(0.537048, 0.168418, 0), V(0.537983, 0.123815, 0), V(0.538462, 0.100962, 0)], [4, 1, 1, 1, 1, 1, 1, 1, 1, 1, 1, 1, 1, 1, 1, 1, 4], [0, 1.204677245, 2.340008924, 3.41562088, 4.44046575, 5.417001248, 6.3630415, 7.269134822, 8.159094629, 9.049542694, 9.952967105, 10.867337362, 11.809438639, 12.784390299, 13.812011701, 14.878922867, 16], False, 3, [1, 1, 1, 1, 1, 1, 1, 1, 1, 1, 1, 1, 1, 1, 1, 1, 1, 1, 1], False), False)
add_polygon(sketch7, [(-2, 3.961538), (1, 3.961538), (1, 1.692308), (0.5, 1.692308), (0.5, 3.384615), (-0.346154, 3.384615), (-0.346154, 1.846154), (-0.846154, 1.846154), (-0.846154, 3.384615), (-1.5, 3.384615), (-1.5, 1.730769), (-2, 1.730769)])
sketch7.addConstraint(Sketcher.Constraint("Block", 1))
sketch7.addConstraint(Sketcher.Constraint("Block", 2))
sketch7.addConstraint(Sketcher.Constraint("Block", 3))
sketch7.addConstraint(Sketcher.Constraint("Block", 4))
sketch7.addConstraint(Sketcher.Constraint("Block", 6))
sketch7.addConstraint(Sketcher.Constraint("Block", 7))
sketch7.addConstraint(Sketcher.Constraint("Block", 8))
sketch7.addConstraint(Sketcher.Constraint("Block", 9))
sketch7.addConstraint(Sketcher.Constraint("Block", 10))
sketch7.addConstraint(Sketcher.Constraint("Block", 12))
sketch7.addConstraint(Sketcher.Constraint("Block", 13))
sketch7.addConstraint(Sketcher.Constraint("Block", 14))
sketch7.addConstraint(Sketcher.Constraint("Block", 15))
sketch7.addConstraint(Sketcher.Constraint("Block", 16))
sketch7.addConstraint(Sketcher.Constraint("Block", 17))
sketch7.addConstraint(Sketcher.Constraint("Block", 18))
sketch7.addConstraint(Sketcher.Constraint("Block", 20))
sketch7.addConstraint(Sketcher.Constraint("Block", 21))
sketch7.addConstraint(Sketcher.Constraint("Block", 22))
sketch7.addConstraint(Sketcher.Constraint("Block", 23))
sketch7.addConstraint(Sketcher.Constraint("Block", 24))
sketch7.addConstraint(Sketcher.Constraint("Block", 25))
sketch7.addConstraint(Sketcher.Constraint("Block", 26))
sketch7.addConstraint(Sketcher.Constraint("Block", 27))
sketch7.addConstraint(Sketcher.Constraint("Coincident", 0, 2, 1, 2))
sketch7.addConstraint(Sketcher.Constraint("Coincident", 4, 1, 5, 1))
sketch7.addConstraint(Sketcher.Constraint("Coincident", 5, 2, 6, 2))
sketch7.addConstraint(Sketcher.Constraint("Coincident", 10, 1, 0, 1))
sketch7.addConstraint(Sketcher.Constraint("Coincident", 11, 2, 12, 2))
sketch7.addConstraint(Sketcher.Constraint("Coincident", 18, 1, 19, 1))
sketch7.addConstraint(Sketcher.Constraint("Coincident", 19, 2, 20, 2))
sketch7.addConstraint(Sketcher.Constraint("Coincident", 27, 1, 11, 1))
sketch7.addConstraint(Sketcher.Constraint("Horizontal", 28))
sketch7.addConstraint(Sketcher.Constraint("Vertical", 29))
sketch7.addConstraint(Sketcher.Constraint("Horizontal", 30))
sketch7.addConstraint(Sketcher.Constraint("Vertical", 31))
sketch7.addConstraint(Sketcher.Constraint("Horizontal", 32))
sketch7.addConstraint(Sketcher.Constraint("Vertical", 33))
sketch7.addConstraint(Sketcher.Constraint("Horizontal", 34))
sketch7.addConstraint(Sketcher.Constraint("Vertical", 35))
sketch7.addConstraint(Sketcher.Constraint("Horizontal", 36))
sketch7.addConstraint(Sketcher.Constraint("Vertical", 37))
sketch7.addConstraint(Sketcher.Constraint("Horizontal", 38))
sketch7.addConstraint(Sketcher.Constraint("Vertical", 39))
sketch7.addConstraint(Sketcher.Constraint("Horizontal", 32, 2, 35, 2))
sketch7.addConstraint(Sketcher.Constraint("Equal", 30, 34))
sketch7.addConstraint(Sketcher.Constraint("Equal", 34, 38))
sketch7.addConstraint(Sketcher.Constraint("DistanceX", 28, 1, 28, 2, Q("3 mm")))
sketch7.addConstraint(Sketcher.Constraint("DistanceX", 30, 2, 30, 1, Q("0.5 mm")))
sketch7.addConstraint(Sketcher.Constraint("DistanceX", -1, 1, 28, 2, Q("1 mm")))
sketch7.addConstraint(Sketcher.Constraint("DistanceY", 5, 2, 28, 2, Q("8 mm")))
sketch7.addConstraint(Sketcher.Constraint("DistanceY", 11, 2, 33, 2, Q("0.5 mm")))
sketch7.addConstraint(Sketcher.Constraint("DistanceY", 29, 2, 29, 1, Q("2.269231 mm")))
sketch7.addConstraint(Sketcher.Constraint("DistanceY", 33, 2, 33, 1, Q("1.538462 mm")))
sketch7.addConstraint(Sketcher.Constraint("DistanceY", 39, 1, 39, 2, Q("2.230769 mm")))
sketch7.addConstraint(Sketcher.Constraint("DistanceX", 32, 2, 32, 1, Q("0.846154 mm")))
pocket1 = body.newObject("PartDesign::Pocket", "Pocket")
pocket1.Profile = sketch7
pocket1.Length = 0.2
pocket1.Reversed = True

doc.recompute()
